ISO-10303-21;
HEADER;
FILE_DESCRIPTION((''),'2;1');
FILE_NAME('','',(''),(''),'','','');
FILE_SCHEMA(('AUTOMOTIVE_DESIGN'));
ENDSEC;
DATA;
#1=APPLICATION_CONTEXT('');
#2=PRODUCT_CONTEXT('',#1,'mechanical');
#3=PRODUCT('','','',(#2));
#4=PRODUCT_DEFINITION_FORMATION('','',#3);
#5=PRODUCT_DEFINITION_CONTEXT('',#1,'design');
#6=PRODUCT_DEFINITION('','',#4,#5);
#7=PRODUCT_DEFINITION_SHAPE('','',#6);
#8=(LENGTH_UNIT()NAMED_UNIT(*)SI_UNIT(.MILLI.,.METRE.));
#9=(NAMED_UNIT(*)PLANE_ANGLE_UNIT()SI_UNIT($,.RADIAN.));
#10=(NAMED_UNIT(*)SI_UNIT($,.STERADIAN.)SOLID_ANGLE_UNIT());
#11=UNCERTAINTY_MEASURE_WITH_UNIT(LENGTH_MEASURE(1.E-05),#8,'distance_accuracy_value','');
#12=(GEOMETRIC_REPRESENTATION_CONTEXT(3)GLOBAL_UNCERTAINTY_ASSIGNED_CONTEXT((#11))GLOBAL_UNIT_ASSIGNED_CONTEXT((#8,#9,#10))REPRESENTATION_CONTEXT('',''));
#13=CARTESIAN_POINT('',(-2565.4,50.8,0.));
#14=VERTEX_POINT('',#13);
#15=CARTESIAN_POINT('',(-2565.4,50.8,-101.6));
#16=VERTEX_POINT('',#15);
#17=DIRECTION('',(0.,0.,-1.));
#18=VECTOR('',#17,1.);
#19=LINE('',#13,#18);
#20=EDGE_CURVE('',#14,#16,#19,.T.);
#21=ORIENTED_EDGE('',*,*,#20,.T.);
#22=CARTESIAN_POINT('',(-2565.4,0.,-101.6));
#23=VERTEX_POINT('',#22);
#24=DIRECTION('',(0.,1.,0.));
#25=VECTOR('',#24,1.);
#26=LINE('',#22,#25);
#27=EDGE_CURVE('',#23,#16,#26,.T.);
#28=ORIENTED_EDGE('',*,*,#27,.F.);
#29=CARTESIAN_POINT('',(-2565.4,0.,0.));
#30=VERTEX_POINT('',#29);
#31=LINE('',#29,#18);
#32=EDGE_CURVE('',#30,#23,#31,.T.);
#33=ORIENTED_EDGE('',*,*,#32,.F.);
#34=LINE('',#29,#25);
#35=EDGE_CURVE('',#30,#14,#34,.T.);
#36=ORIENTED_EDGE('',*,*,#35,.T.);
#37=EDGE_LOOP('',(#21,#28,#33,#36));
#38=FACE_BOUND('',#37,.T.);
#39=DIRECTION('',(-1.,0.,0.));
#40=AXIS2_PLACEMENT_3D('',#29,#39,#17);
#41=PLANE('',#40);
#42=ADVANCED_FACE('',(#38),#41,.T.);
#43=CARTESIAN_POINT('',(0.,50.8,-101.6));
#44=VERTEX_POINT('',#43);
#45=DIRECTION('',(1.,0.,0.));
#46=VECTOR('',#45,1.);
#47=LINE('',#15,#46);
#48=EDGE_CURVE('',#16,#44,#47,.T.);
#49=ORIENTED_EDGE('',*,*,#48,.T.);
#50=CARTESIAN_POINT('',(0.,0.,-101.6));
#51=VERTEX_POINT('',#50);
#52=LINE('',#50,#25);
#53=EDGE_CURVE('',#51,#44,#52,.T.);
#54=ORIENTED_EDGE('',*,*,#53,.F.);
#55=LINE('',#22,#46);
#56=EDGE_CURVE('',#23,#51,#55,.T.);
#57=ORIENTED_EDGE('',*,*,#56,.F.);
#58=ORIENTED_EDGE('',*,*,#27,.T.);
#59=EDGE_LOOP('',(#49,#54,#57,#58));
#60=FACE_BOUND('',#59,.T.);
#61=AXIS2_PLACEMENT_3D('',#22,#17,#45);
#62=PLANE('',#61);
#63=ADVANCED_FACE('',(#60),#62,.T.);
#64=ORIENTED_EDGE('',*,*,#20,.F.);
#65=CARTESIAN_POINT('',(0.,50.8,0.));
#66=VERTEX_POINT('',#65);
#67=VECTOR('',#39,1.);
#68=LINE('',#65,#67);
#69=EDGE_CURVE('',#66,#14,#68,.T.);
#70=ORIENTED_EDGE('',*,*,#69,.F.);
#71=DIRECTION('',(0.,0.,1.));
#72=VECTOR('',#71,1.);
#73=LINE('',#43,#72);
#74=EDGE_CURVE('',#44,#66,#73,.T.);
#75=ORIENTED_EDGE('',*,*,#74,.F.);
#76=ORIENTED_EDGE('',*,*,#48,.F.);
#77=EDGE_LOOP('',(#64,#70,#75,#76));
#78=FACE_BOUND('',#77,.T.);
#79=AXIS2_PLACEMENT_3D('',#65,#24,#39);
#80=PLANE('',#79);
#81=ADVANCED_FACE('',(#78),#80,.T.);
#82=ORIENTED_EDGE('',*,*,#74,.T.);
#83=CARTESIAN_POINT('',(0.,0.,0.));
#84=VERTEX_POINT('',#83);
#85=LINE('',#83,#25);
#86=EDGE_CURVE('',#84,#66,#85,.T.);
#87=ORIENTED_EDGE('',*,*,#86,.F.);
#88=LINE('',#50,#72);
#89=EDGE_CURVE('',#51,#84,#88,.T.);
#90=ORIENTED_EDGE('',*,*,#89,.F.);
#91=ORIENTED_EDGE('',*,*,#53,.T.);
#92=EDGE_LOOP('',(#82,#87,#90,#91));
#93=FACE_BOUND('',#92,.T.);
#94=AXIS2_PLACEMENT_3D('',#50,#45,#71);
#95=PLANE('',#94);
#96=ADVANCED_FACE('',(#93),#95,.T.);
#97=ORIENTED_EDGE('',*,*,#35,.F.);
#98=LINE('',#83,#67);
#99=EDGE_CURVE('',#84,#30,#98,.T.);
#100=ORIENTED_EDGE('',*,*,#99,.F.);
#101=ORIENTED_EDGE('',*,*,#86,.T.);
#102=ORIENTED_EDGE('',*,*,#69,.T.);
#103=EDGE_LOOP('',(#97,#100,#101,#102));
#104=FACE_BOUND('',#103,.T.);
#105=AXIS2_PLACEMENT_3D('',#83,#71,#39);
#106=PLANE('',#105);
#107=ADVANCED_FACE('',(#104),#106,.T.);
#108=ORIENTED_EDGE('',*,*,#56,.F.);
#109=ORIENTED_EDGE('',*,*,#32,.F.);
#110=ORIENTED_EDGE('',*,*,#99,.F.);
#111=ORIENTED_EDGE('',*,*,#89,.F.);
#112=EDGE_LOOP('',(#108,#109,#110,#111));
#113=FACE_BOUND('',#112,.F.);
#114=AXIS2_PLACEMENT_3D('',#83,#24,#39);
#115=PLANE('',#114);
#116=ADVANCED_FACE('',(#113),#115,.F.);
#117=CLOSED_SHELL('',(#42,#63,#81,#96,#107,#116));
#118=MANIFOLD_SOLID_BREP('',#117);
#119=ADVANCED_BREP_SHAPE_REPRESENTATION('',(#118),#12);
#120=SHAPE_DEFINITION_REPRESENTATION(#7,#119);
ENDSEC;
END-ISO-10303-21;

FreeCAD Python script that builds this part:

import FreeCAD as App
import Part
import Sketcher

V = App.Vector
Q = App.Units.Quantity


def add_polygon(sketch, points):
    """Adds a closed chain of lines whose ends are joined by coincident constraints."""
    first, n = sketch.GeometryCount, len(points)
    for a, b in zip(points, points[1:] + points[:1]):
        sketch.addGeometry(Part.LineSegment(App.Vector(*a, 0), App.Vector(*b, 0)), False)
    for i in range(n):
        sketch.addConstraint(Sketcher.Constraint("Coincident", first + i, 2, first + (i + 1) % n, 1))

doc = App.newDocument("Part")
params = doc.addObject("Spreadsheet::Sheet", "Params")
for row, (alias, value) in enumerate([
    ("sketch1_width", "101 in"),
    ("sketch1_height", "4 in"),
    ("pad1_length", "2 in"),
], start=1):
    params.set(f"A{row}", alias)
    params.set(f"B{row}", "=" + value)
    params.setAlias(f"B{row}", alias)

body = doc.addObject("PartDesign::Body", "Body")

# Sketch on XZ plane
sketch1 = doc.addObject("Sketcher::SketchObject", "Sketch")
body.addObject(sketch1)
sketch1.AttachmentSupport = (doc.XZ_Plane, [""])
sketch1.MapMode = "FlatFace"
add_polygon(sketch1, [(-2565, 0), (0, 0), (0, -102), (-2565, -102)])  # lines 0-3
sketch1.addConstraint(Sketcher.Constraint("Horizontal", 0))
sketch1.addConstraint(Sketcher.Constraint("Vertical", 1))
sketch1.addConstraint(Sketcher.Constraint("Horizontal", 2))
sketch1.addConstraint(Sketcher.Constraint("Vertical", 3))
sketch1.addConstraint(Sketcher.Constraint("Coincident", 0, 2, -1, 1))
sketch1.addConstraint(Sketcher.Constraint("DistanceX", 0, 1, 0, 2, Q("101 in")))
sketch1.addConstraint(Sketcher.Constraint("DistanceY", 1, 2, 1, 1, Q("4 in")))
sketch1.setExpression("Constraints[9]", "Params.sketch1_width")
sketch1.setExpression("Constraints[10]", "Params.sketch1_height")
pad1 = doc.addObject("PartDesign::Pad", "Pad")
body.addObject(pad1)
pad1.Profile = sketch1
pad1.setExpression("Length", "Params.pad1_length")
pad1.Reversed = True

doc.recompute()
